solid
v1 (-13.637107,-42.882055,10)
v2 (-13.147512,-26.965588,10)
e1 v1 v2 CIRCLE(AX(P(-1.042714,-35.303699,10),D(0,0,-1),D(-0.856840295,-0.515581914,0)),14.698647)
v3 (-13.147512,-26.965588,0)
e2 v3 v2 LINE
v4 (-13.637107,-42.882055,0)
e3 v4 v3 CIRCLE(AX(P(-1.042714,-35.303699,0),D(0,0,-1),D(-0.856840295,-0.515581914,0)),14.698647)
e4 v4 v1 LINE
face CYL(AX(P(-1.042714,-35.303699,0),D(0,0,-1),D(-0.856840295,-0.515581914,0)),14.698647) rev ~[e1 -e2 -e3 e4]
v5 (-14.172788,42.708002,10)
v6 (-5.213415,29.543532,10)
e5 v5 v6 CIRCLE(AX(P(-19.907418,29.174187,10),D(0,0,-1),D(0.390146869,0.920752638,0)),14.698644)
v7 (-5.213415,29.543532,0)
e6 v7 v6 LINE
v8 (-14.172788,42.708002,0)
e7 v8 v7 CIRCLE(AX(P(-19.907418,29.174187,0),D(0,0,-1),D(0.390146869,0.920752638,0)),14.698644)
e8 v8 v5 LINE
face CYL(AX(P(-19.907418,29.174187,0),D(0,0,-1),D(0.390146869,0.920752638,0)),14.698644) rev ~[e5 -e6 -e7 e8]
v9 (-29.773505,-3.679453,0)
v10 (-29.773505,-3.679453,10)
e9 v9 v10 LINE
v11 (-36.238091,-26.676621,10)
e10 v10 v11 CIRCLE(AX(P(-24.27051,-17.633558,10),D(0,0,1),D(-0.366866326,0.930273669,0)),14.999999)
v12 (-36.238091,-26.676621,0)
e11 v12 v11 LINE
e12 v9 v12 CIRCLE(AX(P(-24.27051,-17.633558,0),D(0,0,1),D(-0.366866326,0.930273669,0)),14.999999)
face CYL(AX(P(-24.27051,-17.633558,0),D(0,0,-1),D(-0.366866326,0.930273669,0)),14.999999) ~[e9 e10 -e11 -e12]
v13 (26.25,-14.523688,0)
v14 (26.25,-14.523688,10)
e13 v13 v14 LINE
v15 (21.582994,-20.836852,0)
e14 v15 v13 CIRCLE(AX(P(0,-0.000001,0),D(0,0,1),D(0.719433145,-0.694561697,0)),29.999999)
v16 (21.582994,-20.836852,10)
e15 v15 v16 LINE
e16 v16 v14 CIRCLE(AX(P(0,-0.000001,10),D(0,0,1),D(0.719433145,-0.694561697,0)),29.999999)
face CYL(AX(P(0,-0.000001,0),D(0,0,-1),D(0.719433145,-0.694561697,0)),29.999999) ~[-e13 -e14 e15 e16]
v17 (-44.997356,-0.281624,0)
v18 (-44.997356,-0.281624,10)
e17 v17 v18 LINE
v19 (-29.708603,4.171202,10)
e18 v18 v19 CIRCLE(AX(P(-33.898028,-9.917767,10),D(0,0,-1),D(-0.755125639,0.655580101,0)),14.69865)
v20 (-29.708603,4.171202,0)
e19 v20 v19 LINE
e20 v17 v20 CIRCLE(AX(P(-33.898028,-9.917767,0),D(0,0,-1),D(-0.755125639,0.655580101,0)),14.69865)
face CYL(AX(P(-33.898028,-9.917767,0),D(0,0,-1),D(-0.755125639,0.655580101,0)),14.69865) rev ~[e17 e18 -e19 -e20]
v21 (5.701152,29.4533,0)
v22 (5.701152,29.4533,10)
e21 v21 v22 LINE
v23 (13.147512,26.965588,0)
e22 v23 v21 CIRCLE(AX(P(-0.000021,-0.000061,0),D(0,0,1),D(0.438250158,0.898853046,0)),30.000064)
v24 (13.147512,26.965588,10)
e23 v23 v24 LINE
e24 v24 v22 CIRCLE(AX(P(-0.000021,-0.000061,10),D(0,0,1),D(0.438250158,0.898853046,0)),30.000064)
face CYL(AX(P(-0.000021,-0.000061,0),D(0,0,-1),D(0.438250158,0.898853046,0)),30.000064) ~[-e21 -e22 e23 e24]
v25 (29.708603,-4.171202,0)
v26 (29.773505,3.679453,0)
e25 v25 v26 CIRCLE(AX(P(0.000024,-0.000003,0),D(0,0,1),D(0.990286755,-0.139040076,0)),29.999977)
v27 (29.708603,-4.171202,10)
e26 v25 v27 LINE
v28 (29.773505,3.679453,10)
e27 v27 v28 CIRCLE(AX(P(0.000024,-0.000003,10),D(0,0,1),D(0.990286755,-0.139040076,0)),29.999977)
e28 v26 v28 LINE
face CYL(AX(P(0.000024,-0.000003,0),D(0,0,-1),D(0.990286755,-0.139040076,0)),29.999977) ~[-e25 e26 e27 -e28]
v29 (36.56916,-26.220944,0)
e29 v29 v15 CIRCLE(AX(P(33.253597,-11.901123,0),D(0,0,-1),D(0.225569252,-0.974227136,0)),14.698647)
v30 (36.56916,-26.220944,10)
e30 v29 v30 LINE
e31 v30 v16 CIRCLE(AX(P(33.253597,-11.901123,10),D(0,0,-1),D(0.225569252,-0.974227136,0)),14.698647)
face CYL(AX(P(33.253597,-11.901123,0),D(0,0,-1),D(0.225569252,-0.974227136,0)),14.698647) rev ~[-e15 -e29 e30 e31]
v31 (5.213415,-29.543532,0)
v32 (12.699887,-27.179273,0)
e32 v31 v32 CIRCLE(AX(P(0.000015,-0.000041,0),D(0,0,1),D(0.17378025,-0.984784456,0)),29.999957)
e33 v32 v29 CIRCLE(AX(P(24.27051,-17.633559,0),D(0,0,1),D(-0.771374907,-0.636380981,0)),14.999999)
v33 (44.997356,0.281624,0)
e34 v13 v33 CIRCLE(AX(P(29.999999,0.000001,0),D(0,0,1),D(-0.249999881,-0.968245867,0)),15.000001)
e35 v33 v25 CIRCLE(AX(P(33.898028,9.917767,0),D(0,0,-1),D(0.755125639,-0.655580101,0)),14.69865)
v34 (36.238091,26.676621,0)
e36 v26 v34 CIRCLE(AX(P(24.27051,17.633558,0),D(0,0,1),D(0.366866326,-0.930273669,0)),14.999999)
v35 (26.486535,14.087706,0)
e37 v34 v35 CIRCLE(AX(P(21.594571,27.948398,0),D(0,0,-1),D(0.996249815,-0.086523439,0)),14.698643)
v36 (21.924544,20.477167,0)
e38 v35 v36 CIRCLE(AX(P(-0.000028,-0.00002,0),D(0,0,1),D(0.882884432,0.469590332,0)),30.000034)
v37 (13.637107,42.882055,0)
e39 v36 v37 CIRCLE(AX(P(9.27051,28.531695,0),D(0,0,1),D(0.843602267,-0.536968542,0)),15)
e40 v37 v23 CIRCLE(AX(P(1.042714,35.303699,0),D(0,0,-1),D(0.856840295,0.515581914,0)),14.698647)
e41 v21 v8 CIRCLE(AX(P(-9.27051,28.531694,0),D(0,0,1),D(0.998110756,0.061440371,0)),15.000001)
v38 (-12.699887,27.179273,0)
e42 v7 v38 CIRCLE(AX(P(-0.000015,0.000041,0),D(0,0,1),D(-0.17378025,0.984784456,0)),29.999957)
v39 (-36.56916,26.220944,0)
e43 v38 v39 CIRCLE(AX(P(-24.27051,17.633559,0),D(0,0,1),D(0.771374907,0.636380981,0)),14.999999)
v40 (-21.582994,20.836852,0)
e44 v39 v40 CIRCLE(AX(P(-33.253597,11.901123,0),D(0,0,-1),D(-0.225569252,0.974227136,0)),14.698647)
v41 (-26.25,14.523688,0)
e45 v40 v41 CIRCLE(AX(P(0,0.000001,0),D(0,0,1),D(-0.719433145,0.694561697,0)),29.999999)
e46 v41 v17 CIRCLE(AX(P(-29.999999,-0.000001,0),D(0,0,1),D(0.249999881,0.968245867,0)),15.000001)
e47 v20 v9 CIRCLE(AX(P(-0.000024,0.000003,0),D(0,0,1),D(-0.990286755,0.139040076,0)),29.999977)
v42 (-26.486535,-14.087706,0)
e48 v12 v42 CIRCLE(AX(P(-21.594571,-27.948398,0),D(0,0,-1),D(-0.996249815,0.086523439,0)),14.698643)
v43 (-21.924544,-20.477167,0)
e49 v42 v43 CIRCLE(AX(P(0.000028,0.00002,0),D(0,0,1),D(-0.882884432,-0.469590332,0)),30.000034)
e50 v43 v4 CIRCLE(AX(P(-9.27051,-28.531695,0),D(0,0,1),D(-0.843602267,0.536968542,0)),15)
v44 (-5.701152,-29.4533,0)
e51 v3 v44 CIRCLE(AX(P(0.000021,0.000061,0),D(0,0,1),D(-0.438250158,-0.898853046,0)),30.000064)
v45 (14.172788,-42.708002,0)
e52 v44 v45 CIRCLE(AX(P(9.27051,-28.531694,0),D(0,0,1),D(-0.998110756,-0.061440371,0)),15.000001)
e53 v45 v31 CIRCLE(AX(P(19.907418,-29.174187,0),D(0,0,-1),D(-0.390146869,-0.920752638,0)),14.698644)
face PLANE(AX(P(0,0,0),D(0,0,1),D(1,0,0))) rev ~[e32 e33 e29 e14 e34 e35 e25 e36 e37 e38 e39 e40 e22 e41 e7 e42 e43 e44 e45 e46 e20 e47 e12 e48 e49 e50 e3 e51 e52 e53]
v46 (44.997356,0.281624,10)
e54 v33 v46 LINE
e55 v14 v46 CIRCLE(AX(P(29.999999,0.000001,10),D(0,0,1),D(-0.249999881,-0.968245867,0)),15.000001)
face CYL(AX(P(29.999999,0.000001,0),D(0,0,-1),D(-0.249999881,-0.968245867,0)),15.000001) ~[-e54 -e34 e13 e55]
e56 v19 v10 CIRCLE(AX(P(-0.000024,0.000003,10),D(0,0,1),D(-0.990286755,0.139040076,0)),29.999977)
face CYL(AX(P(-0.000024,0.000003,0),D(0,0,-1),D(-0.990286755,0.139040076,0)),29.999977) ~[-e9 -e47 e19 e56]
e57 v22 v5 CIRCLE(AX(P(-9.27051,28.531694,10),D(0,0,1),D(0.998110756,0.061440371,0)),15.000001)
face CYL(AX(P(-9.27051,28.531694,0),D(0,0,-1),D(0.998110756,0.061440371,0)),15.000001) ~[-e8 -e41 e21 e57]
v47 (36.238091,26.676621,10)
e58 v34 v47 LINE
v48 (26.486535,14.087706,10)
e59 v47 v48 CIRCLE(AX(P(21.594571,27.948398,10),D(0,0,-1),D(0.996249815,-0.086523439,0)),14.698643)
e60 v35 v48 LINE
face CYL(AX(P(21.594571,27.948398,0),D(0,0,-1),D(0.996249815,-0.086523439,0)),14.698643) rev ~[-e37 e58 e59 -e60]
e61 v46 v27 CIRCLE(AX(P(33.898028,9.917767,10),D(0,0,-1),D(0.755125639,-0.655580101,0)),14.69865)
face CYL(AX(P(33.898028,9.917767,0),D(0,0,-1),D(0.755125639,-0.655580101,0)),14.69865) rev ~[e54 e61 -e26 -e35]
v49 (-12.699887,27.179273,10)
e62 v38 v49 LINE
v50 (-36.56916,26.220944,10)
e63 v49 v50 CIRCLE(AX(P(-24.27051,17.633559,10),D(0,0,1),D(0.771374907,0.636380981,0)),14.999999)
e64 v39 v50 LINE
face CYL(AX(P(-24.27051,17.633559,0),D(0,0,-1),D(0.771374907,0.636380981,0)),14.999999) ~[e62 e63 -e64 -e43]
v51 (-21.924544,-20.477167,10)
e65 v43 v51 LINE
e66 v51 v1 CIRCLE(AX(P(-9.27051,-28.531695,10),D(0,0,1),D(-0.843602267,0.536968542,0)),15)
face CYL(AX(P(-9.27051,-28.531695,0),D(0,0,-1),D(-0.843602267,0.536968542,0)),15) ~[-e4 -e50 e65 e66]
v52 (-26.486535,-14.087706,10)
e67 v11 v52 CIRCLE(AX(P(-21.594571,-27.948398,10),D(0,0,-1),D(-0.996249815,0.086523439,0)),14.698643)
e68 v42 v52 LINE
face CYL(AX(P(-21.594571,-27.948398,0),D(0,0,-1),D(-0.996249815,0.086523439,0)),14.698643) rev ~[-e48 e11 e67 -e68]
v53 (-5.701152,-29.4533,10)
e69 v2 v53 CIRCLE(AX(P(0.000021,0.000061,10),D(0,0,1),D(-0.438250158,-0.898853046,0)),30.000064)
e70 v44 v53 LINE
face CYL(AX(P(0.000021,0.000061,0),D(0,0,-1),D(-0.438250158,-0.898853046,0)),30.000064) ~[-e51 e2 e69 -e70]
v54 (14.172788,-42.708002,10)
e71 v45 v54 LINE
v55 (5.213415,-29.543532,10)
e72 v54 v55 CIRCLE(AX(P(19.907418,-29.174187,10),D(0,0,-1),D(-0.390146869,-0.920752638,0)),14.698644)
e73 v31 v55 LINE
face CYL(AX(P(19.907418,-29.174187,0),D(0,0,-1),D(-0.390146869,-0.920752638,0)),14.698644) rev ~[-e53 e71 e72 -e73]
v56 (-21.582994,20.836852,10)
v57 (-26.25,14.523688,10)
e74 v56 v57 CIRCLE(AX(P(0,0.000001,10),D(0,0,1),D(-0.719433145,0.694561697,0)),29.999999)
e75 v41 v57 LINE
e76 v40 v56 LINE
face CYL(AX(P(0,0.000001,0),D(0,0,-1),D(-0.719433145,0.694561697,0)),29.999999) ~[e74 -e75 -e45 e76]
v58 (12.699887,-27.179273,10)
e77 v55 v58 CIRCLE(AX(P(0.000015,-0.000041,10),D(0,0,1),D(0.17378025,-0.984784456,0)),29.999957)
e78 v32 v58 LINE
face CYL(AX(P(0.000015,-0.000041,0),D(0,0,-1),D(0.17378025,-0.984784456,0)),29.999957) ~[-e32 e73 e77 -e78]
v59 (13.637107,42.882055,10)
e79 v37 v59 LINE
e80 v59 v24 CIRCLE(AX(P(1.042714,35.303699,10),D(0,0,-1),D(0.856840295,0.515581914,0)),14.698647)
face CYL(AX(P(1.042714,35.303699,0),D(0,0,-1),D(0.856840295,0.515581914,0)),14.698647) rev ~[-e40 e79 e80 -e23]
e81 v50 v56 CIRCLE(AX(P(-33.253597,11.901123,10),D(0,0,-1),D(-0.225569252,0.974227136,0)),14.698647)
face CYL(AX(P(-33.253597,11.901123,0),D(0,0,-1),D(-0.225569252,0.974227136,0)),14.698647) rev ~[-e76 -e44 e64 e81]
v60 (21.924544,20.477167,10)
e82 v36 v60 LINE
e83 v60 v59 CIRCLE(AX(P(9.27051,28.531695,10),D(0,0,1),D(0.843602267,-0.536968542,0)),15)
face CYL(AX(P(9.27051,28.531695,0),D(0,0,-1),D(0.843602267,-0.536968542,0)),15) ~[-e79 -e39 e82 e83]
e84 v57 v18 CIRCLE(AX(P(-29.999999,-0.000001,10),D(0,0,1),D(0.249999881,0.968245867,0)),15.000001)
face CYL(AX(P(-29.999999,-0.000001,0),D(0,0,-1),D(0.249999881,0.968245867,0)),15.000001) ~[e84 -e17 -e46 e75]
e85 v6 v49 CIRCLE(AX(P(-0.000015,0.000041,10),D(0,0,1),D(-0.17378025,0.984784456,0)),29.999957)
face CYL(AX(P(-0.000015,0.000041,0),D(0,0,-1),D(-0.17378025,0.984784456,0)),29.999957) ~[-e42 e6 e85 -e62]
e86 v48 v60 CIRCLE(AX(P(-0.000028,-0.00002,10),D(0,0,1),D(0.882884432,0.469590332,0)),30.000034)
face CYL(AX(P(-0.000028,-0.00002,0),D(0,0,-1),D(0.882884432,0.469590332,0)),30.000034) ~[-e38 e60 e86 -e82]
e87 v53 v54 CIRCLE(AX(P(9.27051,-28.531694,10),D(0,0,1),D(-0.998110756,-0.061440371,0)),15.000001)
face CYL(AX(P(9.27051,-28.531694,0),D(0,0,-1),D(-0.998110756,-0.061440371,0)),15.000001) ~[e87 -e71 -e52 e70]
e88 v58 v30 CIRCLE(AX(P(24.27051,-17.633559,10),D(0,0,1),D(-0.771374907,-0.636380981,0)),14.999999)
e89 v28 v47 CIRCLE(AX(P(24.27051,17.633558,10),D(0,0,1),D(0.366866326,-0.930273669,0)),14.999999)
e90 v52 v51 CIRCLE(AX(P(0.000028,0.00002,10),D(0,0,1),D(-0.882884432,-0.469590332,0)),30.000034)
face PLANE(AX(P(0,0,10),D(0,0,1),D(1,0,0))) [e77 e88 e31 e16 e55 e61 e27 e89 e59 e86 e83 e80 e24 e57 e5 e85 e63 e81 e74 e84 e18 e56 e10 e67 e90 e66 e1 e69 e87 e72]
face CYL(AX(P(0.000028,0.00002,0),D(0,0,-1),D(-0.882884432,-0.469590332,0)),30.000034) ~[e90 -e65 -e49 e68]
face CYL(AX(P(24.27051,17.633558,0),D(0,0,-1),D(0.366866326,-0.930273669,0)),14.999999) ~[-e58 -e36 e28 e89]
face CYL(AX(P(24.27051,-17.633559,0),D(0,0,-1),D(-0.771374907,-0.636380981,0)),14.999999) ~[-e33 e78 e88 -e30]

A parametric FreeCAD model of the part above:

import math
import FreeCAD as App
import Part
import Sketcher
from FreeCAD import Vector

doc = App.newDocument("Part")
params = doc.addObject("Spreadsheet::Sheet", "Params")
for row, (alias, value) in enumerate([
    ("sketch1_radius", "14.999999 mm"),
    ("sketch1_radius2", "29.999999 mm"),
    ("pad1_length", "10 mm"),
], start=1):
    params.set(f"A{row}", alias)
    params.set(f"B{row}", "=" + value)
    params.setAlias(f"B{row}", alias)

body = doc.addObject("PartDesign::Body", "Body")

sketch1 = doc.addObject("Sketcher::SketchObject", "Sketch")
body.addObject(sketch1)
sketch1.AttachmentSupport = (doc.XY_Plane, [""])
sketch1.MapMode = "FlatFace"
sketch1.addGeometry([
    Part.ArcOfCircle(Part.Circle(Vector(-33.898028, -9.917767, 0), Vector(0, 0, 1), 14.69865), math.radians(73.439891), math.radians(139.036349)),
    Part.ArcOfCircle(Part.Circle(Vector(-0.000024, 0.000003, 0), Vector(0, 0, 1), 29.999977), math.radians(172.007697), math.radians(187.044987)),
    Part.ArcOfCircle(Part.Circle(Vector(-24.27051, -17.633558, 0), Vector(0, 0, 1), 14.999999), math.radians(111.522485), math.radians(217.07579)),
    Part.ArcOfCircle(Part.Circle(Vector(-21.594571, -27.948398, 0), Vector(0, 0, 1), 14.698643), math.radians(109.43987), math.radians(175.036366)),
    Part.ArcOfCircle(Part.Circle(Vector(0.000028, 0.00002, 0), Vector(0, 0, 1), 30.000034), math.radians(-151.992293), math.radians(-136.955034)),
    Part.ArcOfCircle(Part.Circle(Vector(-9.27051, -28.531695, 0), Vector(0, 0, 1), 15), math.radians(147.522488), math.radians(253.07579)),
    Part.ArcOfCircle(Part.Circle(Vector(-1.042714, -35.303699, 0), Vector(0, 0, 1), 14.698647), math.radians(145.439884), math.radians(211.036359)),
    Part.ArcOfCircle(Part.Circle(Vector(0.000021, 0.000061, 0), Vector(0, 0, 1), 30.000064), math.radians(-115.992288), math.radians(-100.955042)),
    Part.ArcOfCircle(Part.Circle(Vector(9.27051, -28.531694, 0), Vector(0, 0, 1), 15.000001), math.radians(-176.477507), math.radians(-70.924215)),
    Part.ArcOfCircle(Part.Circle(Vector(19.907418, -29.174187, 0), Vector(0, 0, 1), 14.698644), math.radians(-178.560128), math.radians(-112.963638)),
    Part.ArcOfCircle(Part.Circle(Vector(0.000015, -0.000041, 0), Vector(0, 0, 1), 29.999957), math.radians(-79.992316), math.radians(-64.955017)),
    Part.ArcOfCircle(Part.Circle(Vector(24.27051, -17.633559, 0), Vector(0, 0, 1), 14.999999), math.radians(-140.477515), math.radians(-34.92421)),
    Part.ArcOfCircle(Part.Circle(Vector(33.253597, -11.901123, 0), Vector(0, 0, 1), 14.698647), math.radians(-142.560118), math.radians(-76.963646)),
    Part.ArcOfCircle(Part.Circle(Vector(0, -0.000001, 0), Vector(0, 0, 1), 29.999999), math.radians(-43.9923), math.radians(-28.955023)),
    Part.ArcOfCircle(Part.Circle(Vector(29.999999, 0.000001, 0), Vector(0, 0, 1), 15.000001), math.radians(-104.477505), math.radians(1.075782)),
    Part.ArcOfCircle(Part.Circle(Vector(33.898028, 9.917767, 0), Vector(0, 0, 1), 14.69865), math.radians(-106.560109), math.radians(-40.963651)),
    Part.ArcOfCircle(Part.Circle(Vector(0.000024, -0.000003, 0), Vector(0, 0, 1), 29.999977), math.radians(-7.992303), math.radians(7.044987)),
    Part.ArcOfCircle(Part.Circle(Vector(24.27051, 17.633558, 0), Vector(0, 0, 1), 14.999999), math.radians(-68.477515), math.radians(37.07579)),
    Part.ArcOfCircle(Part.Circle(Vector(21.594571, 27.948398, 0), Vector(0, 0, 1), 14.698643), math.radians(-70.56013), math.radians(-4.963634)),
    Part.ArcOfCircle(Part.Circle(Vector(-0.000028, -0.00002, 0), Vector(0, 0, 1), 30.000034), math.radians(28.007707), math.radians(43.044966)),
    Part.ArcOfCircle(Part.Circle(Vector(9.27051, 28.531695, 0), Vector(0, 0, 1), 15), math.radians(-32.477512), math.radians(73.07579)),
    Part.ArcOfCircle(Part.Circle(Vector(1.042714, 35.303699, 0), Vector(0, 0, 1), 14.698647), math.radians(-34.560116), math.radians(31.036359)),
    Part.ArcOfCircle(Part.Circle(Vector(-0.000021, -0.000061, 0), Vector(0, 0, 1), 30.000064), math.radians(64.007712), math.radians(79.044958)),
    Part.ArcOfCircle(Part.Circle(Vector(-9.27051, 28.531694, 0), Vector(0, 0, 1), 15.000001), math.radians(3.522493), math.radians(109.075785)),
    Part.ArcOfCircle(Part.Circle(Vector(-19.907418, 29.174187, 0), Vector(0, 0, 1), 14.698644), math.radians(1.439872), math.radians(67.036362)),
    Part.ArcOfCircle(Part.Circle(Vector(-0.000015, 0.000041, 0), Vector(0, 0, 1), 29.999957), math.radians(100.007684), math.radians(115.044983)),
    Part.ArcOfCircle(Part.Circle(Vector(-24.27051, 17.633559, 0), Vector(0, 0, 1), 14.999999), math.radians(39.522485), math.radians(145.07579)),
    Part.ArcOfCircle(Part.Circle(Vector(-33.253597, 11.901123, 0), Vector(0, 0, 1), 14.698647), math.radians(37.439882), math.radians(103.036354)),
    Part.ArcOfCircle(Part.Circle(Vector(0, 0.000001, 0), Vector(0, 0, 1), 29.999999), math.radians(136.0077), math.radians(151.044977)),
    Part.ArcOfCircle(Part.Circle(Vector(-29.999999, -0.000001, 0), Vector(0, 0, 1), 15.000001), math.radians(75.522495), math.radians(181.075782)),
], False)
sketch1.addConstraint([
    Sketcher.Constraint("Coincident", 0, 1, 1, 1),
    Sketcher.Constraint("Coincident", 1, 2, 2, 1),
    Sketcher.Constraint("Coincident", 2, 2, 3, 2),
    Sketcher.Constraint("Coincident", 3, 1, 4, 1),
    Sketcher.Constraint("Coincident", 4, 2, 5, 1),
    Sketcher.Constraint("Coincident", 5, 2, 6, 2),
    Sketcher.Constraint("Coincident", 6, 1, 7, 1),
    Sketcher.Constraint("Coincident", 7, 2, 8, 1),
    Sketcher.Constraint("Coincident", 8, 2, 9, 2),
    Sketcher.Constraint("Coincident", 9, 1, 10, 1),
    Sketcher.Constraint("Coincident", 10, 2, 11, 1),
    Sketcher.Constraint("Coincident", 11, 2, 12, 2),
    Sketcher.Constraint("Coincident", 12, 1, 13, 1),
    Sketcher.Constraint("Coincident", 13, 2, 14, 1),
    Sketcher.Constraint("Coincident", 14, 2, 15, 2),
    Sketcher.Constraint("Coincident", 15, 1, 16, 1),
    Sketcher.Constraint("Coincident", 16, 2, 17, 1),
    Sketcher.Constraint("Coincident", 17, 2, 18, 2),
    Sketcher.Constraint("Coincident", 18, 1, 19, 1),
    Sketcher.Constraint("Coincident", 19, 2, 20, 1),
    Sketcher.Constraint("Coincident", 20, 2, 21, 2),
    Sketcher.Constraint("Coincident", 21, 1, 22, 1),
    Sketcher.Constraint("Coincident", 22, 2, 23, 1),
    Sketcher.Constraint("Coincident", 23, 2, 24, 2),
    Sketcher.Constraint("Coincident", 24, 1, 25, 1),
    Sketcher.Constraint("Coincident", 25, 2, 26, 1),
    Sketcher.Constraint("Coincident", 26, 2, 27, 2),
    Sketcher.Constraint("Coincident", 27, 1, 28, 1),
    Sketcher.Constraint("Coincident", 28, 2, 29, 1),
    Sketcher.Constraint("Coincident", 29, 2, 0, 2),
    Sketcher.Constraint("Coincident", 13, 3, -1, 1),
    Sketcher.Constraint("Coincident", 28, 3, -1, 1),
    Sketcher.Constraint("Equal", 2, 5),
    Sketcher.Constraint("Equal", 5, 8),
    Sketcher.Constraint("Equal", 3, 9),
    Sketcher.Constraint("Equal", 8, 11),
    Sketcher.Constraint("Equal", 6, 12),
    Sketcher.Constraint("Equal", 8, 14),
    Sketcher.Constraint("Equal", 0, 15),
    Sketcher.Constraint("Equal", 1, 16),
    Sketcher.Constraint("Equal", 14, 17),
    Sketcher.Constraint("Equal", 9, 18),
    Sketcher.Constraint("Equal", 4, 19),
    Sketcher.Constraint("Equal", 17, 20),
    Sketcher.Constraint("Equal", 12, 21),
    Sketcher.Constraint("Equal", 7, 22),
    Sketcher.Constraint("Equal", 20, 23),
    Sketcher.Constraint("Equal", 18, 24),
    Sketcher.Constraint("Equal", 10, 25),
    Sketcher.Constraint("Equal", 23, 26),
    Sketcher.Constraint("Equal", 21, 27),
    Sketcher.Constraint("Equal", 13, 28),
    Sketcher.Constraint("Equal", 23, 29),
    Sketcher.Constraint("Symmetric", 0, 3, 15, 3, -1, 1),
    Sketcher.Constraint("Symmetric", 1, 3, 16, 3, -1, 1),
    Sketcher.Constraint("Symmetric", 2, 3, 17, 3, -1, 1),
    Sketcher.Constraint("Symmetric", 3, 3, 18, 3, -1, 1),
    Sketcher.Constraint("Symmetric", 4, 3, 19, 3, -1, 1),
    Sketcher.Constraint("Symmetric", 5, 3, 20, 3, -1, 1),
    Sketcher.Constraint("Symmetric", 6, 3, 21, 3, -1, 1),
    Sketcher.Constraint("Symmetric", 7, 3, 22, 3, -1, 1),
    Sketcher.Constraint("Symmetric", 8, 3, 23, 3, -1, 1),
    Sketcher.Constraint("Symmetric", 9, 3, 24, 3, -1, 1),
    Sketcher.Constraint("Symmetric", 10, 3, 25, 3, -1, 1),
    Sketcher.Constraint("Symmetric", 11, 3, 26, 3, -1, 1),
    Sketcher.Constraint("Symmetric", 12, 3, 27, 3, -1, 1),
    Sketcher.Constraint("Symmetric", 14, 3, 29, 3, -1, 1),
    Sketcher.Constraint("Symmetric", 5, 3, 8, 3, -2),
    Sketcher.Constraint("Symmetric", 2, 3, 11, 3, -2),
    Sketcher.Constraint("PointOnObject", 14, 3, -1),
    Sketcher.Constraint("Horizontal", 1, 3, 14, 3),
    Sketcher.Constraint("Radius", 2, 14.999999),
    Sketcher.Constraint("Radius", 13, 29.999999),
    Sketcher.Constraint("DistanceX", -1, 1, 14, 3, 29.999999),
    Sketcher.Constraint("DistanceX", 2, 3, 5, 3, 15.0),
    Sketcher.Constraint("Radius", 0, 14.69865),
    Sketcher.Constraint("DistanceY", 8, 2, -1, 1, 42.708002),
    Sketcher.Constraint("Radius", 1, 29.999977),
    Sketcher.Constraint("Radius", 3, 14.698643),
    Sketcher.Constraint("Radius", 4, 30.000034),
    Sketcher.Constraint("Radius", 6, 14.698647),
    Sketcher.Constraint("Radius", 7, 30.000064),
    Sketcher.Constraint("Radius", 10, 29.999957),
    Sketcher.Constraint("DistanceX", 4, 3, 15, 3, 33.898),
    Sketcher.Constraint("DistanceX", 6, 1, 5, 3, 3.877002),
    Sketcher.Constraint("DistanceY", 3, 3, -1, 1, 27.948398),
    Sketcher.Constraint("DistanceY", 6, 3, -1, 1, 35.303699),
    Sketcher.Constraint("DistanceY", 7, 2, -1, 1, 29.4533),
    Sketcher.Constraint("DistanceX", 3, 3, 4, 3, 21.594599),
    Sketcher.Constraint("DistanceY", 5, 3, 1, 3, 28.531698),
    Sketcher.Constraint("DistanceY", 10, 3, 7, 3, 0.000102),
    Sketcher.Constraint("DistanceX", 14, 3, 12, 3, 3.253599),
    Sketcher.Constraint("DistanceX", 10, 2, 8, 2, 1.472901),
    Sketcher.Constraint("DistanceX", 0, 3, -1, 1, 33.898028),
    Sketcher.Constraint("DistanceX", 2, 3, -1, 1, 24.27051),
    Sketcher.Constraint("DistanceY", 11, 3, -1, 1, 17.633559),
    Sketcher.Constraint("DistanceY", 6, 1, -1, 1, 26.965588),
    Sketcher.Constraint("DistanceY", 9, 1, -1, 1, 29.543532),
    Sketcher.Constraint("DistanceX", -1, 1, 11, 2, 36.56916),
    Sketcher.Constraint("DistanceY", 0, 3, 1, 3, 9.91777),
    Sketcher.Constraint("DistanceY", 3, 3, 4, 3, 27.948418),
    Sketcher.Constraint("DistanceX", 6, 3, 1, 3, 1.042691),
])
sketch1.setExpression("Constraints[71]", "Params.sketch1_radius")
sketch1.setExpression("Constraints[72]", "Params.sketch1_radius2")
pad1 = doc.addObject("PartDesign::Pad", "Pad")
body.addObject(pad1)
pad1.Profile = sketch1
pad1.setExpression("Length", "Params.pad1_length")

doc.recompute()
